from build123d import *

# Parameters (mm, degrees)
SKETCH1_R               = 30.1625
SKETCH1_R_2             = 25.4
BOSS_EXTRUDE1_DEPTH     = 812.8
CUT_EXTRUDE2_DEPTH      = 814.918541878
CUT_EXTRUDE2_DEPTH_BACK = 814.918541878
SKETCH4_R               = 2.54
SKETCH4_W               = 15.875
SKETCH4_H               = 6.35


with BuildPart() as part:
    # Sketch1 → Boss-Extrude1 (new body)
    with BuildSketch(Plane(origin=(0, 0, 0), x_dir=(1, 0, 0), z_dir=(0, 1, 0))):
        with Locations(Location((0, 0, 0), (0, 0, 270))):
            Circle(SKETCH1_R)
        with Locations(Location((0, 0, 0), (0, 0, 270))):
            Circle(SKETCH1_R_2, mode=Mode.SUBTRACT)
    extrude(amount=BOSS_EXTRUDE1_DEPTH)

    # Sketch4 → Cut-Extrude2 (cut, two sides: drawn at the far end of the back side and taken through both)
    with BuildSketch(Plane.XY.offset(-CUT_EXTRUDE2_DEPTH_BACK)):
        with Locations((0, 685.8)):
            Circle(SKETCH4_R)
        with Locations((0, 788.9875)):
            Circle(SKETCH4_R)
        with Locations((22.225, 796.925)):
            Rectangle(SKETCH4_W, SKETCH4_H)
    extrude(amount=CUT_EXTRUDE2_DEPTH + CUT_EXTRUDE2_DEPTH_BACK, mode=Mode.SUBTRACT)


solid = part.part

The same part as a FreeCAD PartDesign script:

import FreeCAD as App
import Part
import Sketcher
from FreeCAD import Vector
Q = App.Units.Quantity


def add_polygon(sketch, points):
    """Adds a closed chain of lines whose ends are joined by coincident constraints."""
    first, n = sketch.GeometryCount, len(points)
    for a, b in zip(points, points[1:] + points[:1]):
        sketch.addGeometry(Part.LineSegment(App.Vector(*a, 0), App.Vector(*b, 0)), False)
    for i in range(n):
        sketch.addConstraint(Sketcher.Constraint("Coincident", first + i, 2, first + (i + 1) % n, 1))

doc = App.newDocument("Part")
body = doc.addObject("PartDesign::Body", "Body")

# Sketch on XZ plane
sketch1 = body.newObject("Sketcher::SketchObject", "Sketch")
sketch1.AttachmentSupport = (doc.getObject("XZ_Plane"), [""])
sketch1.MapMode = "FlatFace"
sketch1.addGeometry(Part.Circle(Vector(0, 0, 0), Vector(0, 0, 1), 30.1625), False)
sketch1.addGeometry(Part.Circle(Vector(0, 0, 0), Vector(0, 0, 1), 25.4), False)
sketch1.addConstraint(Sketcher.Constraint("Coincident", 0, 3, -1, 1))
sketch1.addConstraint(Sketcher.Constraint("Coincident", 1, 3, -1, 1))
sketch1.addConstraint(Sketcher.Constraint("Diameter", 1, Q("2 in")))
sketch1.addConstraint(Sketcher.Constraint("Diameter", 0, Q("2.375 in")))
pad1 = body.newObject("PartDesign::Pad", "Pad")
pad1.Profile = sketch1
pad1.Length = Q("32 in")
pad1.Reversed = True

# Sketch on XY plane
sketch2 = body.newObject("Sketcher::SketchObject", "Sketch001")
sketch2.AttachmentSupport = (doc.getObject("XY_Plane"), [""])
sketch2.MapMode = "FlatFace"
sketch2.addGeometry(Part.Circle(Vector(0, 685.8, 0), Vector(0, 0, 1), 2.54), False)  # 0
sketch2.addGeometry(Part.Circle(Vector(0, 788.9875, 0), Vector(0, 0, 1), 2.54), False)  # 1
add_polygon(sketch2, [(14.2875, 800.1), (14.2875, 793.75), (30.1625, 793.75), (30.1625, 800.1)])  # lines 2-5
sketch2.addConstraint(Sketcher.Constraint("Vertical", 2))
sketch2.addConstraint(Sketcher.Constraint("Horizontal", 3))
sketch2.addConstraint(Sketcher.Constraint("Vertical", 4))
sketch2.addConstraint(Sketcher.Constraint("Horizontal", 5))
sketch2.addConstraint(Sketcher.Constraint("Equal", 0, 1))
sketch2.addConstraint(Sketcher.Constraint("PointOnObject", 0, 3, -2))
sketch2.addConstraint(Sketcher.Constraint("PointOnObject", 1, 3, -2))
sketch2.addConstraint(Sketcher.Constraint("Diameter", 0, Q("0.2 in")))
sketch2.addConstraint(Sketcher.Constraint("DistanceY", -1, 1, 0, 3, Q("27 in")))
sketch2.addConstraint(Sketcher.Constraint("DistanceY", 2, 2, 2, 1, Q("0.25 in")))
sketch2.addConstraint(Sketcher.Constraint("DistanceY", -1, 1, 4, 2, Q("31.5 in")))
sketch2.addConstraint(Sketcher.Constraint("DistanceX", 3, 1, 3, 2, Q("0.625 in")))
sketch2.addConstraint(Sketcher.Constraint("DistanceY", -1, 1, 1, 3, Q("31.0625 in")))
sketch2.addConstraint(Sketcher.Constraint("DistanceX", -1, 1, 2, 2, Q("0.5625 in")))
pocket1 = body.newObject("PartDesign::Pocket", "Pocket")
pocket1.Profile = sketch2
pocket1.Type = "ThroughAll"
pocket1.Midplane = True

doc.recompute()
